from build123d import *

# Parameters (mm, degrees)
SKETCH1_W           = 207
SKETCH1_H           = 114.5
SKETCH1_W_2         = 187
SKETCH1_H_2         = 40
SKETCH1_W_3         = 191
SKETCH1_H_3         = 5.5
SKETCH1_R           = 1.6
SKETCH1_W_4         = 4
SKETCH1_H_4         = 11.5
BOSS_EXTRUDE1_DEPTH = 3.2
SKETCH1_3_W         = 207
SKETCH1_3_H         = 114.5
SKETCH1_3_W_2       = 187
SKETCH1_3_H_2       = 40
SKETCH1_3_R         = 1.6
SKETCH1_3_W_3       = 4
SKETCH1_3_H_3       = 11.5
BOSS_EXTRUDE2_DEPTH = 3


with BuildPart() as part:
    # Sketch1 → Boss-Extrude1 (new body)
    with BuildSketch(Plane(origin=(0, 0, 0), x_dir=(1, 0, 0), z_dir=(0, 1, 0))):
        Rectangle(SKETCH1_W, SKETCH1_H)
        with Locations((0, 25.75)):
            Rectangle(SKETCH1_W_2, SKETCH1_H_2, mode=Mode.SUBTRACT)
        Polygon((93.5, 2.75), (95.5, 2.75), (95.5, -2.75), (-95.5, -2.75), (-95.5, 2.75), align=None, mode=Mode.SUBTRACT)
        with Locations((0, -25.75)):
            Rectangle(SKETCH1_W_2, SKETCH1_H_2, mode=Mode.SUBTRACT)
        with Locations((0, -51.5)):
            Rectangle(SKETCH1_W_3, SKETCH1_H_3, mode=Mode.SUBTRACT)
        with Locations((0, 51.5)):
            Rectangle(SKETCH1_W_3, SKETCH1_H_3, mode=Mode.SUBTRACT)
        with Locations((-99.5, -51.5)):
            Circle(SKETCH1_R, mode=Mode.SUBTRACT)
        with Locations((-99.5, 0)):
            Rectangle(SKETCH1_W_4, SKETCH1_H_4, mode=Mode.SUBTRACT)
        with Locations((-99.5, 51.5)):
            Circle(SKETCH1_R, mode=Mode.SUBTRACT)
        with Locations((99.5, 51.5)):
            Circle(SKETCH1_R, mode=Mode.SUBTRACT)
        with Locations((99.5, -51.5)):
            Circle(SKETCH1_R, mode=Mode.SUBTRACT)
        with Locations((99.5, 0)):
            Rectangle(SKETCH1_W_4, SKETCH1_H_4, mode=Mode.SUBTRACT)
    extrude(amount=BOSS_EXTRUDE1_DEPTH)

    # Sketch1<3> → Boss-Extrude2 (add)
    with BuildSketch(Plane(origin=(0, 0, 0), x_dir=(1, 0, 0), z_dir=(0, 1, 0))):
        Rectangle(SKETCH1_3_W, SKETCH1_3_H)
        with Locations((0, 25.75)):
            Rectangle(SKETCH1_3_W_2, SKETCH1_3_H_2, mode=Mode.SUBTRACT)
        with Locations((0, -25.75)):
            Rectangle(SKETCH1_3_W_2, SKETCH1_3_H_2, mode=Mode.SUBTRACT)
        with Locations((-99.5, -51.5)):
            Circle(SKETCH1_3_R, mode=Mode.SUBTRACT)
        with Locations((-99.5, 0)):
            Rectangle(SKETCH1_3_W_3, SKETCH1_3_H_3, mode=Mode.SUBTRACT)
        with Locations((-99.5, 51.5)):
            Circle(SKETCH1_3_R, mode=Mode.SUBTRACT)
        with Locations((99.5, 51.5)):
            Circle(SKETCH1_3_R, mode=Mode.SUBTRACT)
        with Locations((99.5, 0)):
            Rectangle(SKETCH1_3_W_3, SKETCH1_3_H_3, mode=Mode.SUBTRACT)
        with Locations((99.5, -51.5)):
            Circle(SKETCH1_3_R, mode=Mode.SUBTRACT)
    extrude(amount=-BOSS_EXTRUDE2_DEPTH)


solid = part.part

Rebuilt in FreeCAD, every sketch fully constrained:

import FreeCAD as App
import Part
import Sketcher

V = App.Vector

doc = App.newDocument("Part")
body = doc.addObject("PartDesign::Body", "Body")

sketch1 = body.newObject("Sketcher::SketchObject", "Sketch")
sketch1.AttachmentSupport = (doc.getObject("XZ_Plane"), [""])
sketch1.MapMode = "FlatFace"
sketch1.addGeometry([
    Part.LineSegment(V(-103.5, -57.25, 0), V(-103.5, 57.25, 0)),
    Part.LineSegment(V(-103.5, 57.25, 0), V(103.5, 57.25, 0)),
    Part.LineSegment(V(103.5, 57.25, 0), V(103.5, -57.25, 0)),
    Part.LineSegment(V(103.5, -57.25, 0), V(-103.5, -57.25, 0)),
    Part.Circle(V(-99.5, 51.5, 0), V(0, 0, 1), 1.6),
    Part.LineSegment(V(95.5, 54.25, 0), V(-95.5, 54.25, 0)),
    Part.LineSegment(V(-95.5, 54.25, 0), V(-95.5, 48.75, 0)),
    Part.LineSegment(V(-95.5, 48.75, 0), V(95.5, 48.75, 0)),
    Part.LineSegment(V(95.5, 48.75, 0), V(95.5, 54.25, 0)),
    Part.Circle(V(99.5, 51.5, 0), V(0, 0, 1), 1.6),
    Part.LineSegment(V(93.5, 45.75, 0), V(-93.5, 45.75, 0)),
    Part.LineSegment(V(-93.5, 45.75, 0), V(-93.5, 5.75, 0)),
    Part.LineSegment(V(-93.5, 5.75, 0), V(93.5, 5.75, 0)),
    Part.LineSegment(V(93.5, 5.75, 0), V(93.5, 45.75, 0)),
    Part.LineSegment(V(-97.5, 5.75, 0), V(-101.5, 5.75, 0)),
    Part.LineSegment(V(-101.5, 5.75, 0), V(-101.5, -5.75, 0)),
    Part.LineSegment(V(-101.5, -5.75, 0), V(-97.5, -5.75, 0)),
    Part.LineSegment(V(-97.5, -5.75, 0), V(-97.5, 5.75, 0)),
    Part.Circle(V(-99.5, -51.5, 0), V(0, 0, 1), 1.6),
    Part.LineSegment(V(-95.5, -2.75, 0), V(95.5, -2.75, 0)),
    Part.LineSegment(V(95.5, -2.75, 0), V(95.5, 2.75, 0)),
    Part.LineSegment(V(95.5, 2.75, 0), V(-95.5, 2.75, 0)),
    Part.LineSegment(V(-95.5, 2.75, 0), V(-95.5, -2.75, 0)),
    Part.LineSegment(V(93.5, -5.75, 0), V(-93.5, -5.75, 0)),
    Part.LineSegment(V(-93.5, -5.75, 0), V(-93.5, -45.75, 0)),
    Part.LineSegment(V(-93.5, -45.75, 0), V(93.5, -45.75, 0)),
    Part.LineSegment(V(93.5, -45.75, 0), V(93.5, -5.75, 0)),
    Part.LineSegment(V(101.5, 5.75, 0), V(97.5, 5.75, 0)),
    Part.LineSegment(V(97.5, 5.75, 0), V(97.5, -5.75, 0)),
    Part.LineSegment(V(97.5, -5.75, 0), V(101.5, -5.75, 0)),
    Part.LineSegment(V(101.5, -5.75, 0), V(101.5, 5.75, 0)),
    Part.LineSegment(V(95.5, -48.75, 0), V(-95.5, -48.75, 0)),
    Part.LineSegment(V(-95.5, -48.75, 0), V(-95.5, -54.25, 0)),
    Part.LineSegment(V(-95.5, -54.25, 0), V(95.5, -54.25, 0)),
    Part.LineSegment(V(95.5, -54.25, 0), V(95.5, -48.75, 0)),
    Part.Circle(V(99.5, -51.5, 0), V(0, 0, 1), 1.6),
], False)
sketch1.addConstraint([
    Sketcher.Constraint("Coincident", 0, 2, 1, 1),
    Sketcher.Constraint("Coincident", 1, 2, 2, 1),
    Sketcher.Constraint("Coincident", 2, 2, 3, 1),
    Sketcher.Constraint("Coincident", 3, 2, 0, 1),
    Sketcher.Constraint("Coincident", 5, 2, 6, 1),
    Sketcher.Constraint("Coincident", 6, 2, 7, 1),
    Sketcher.Constraint("Coincident", 7, 2, 8, 1),
    Sketcher.Constraint("Coincident", 8, 2, 5, 1),
    Sketcher.Constraint("Coincident", 10, 2, 11, 1),
    Sketcher.Constraint("Coincident", 11, 2, 12, 1),
    Sketcher.Constraint("Coincident", 12, 2, 13, 1),
    Sketcher.Constraint("Coincident", 13, 2, 10, 1),
    Sketcher.Constraint("Coincident", 14, 2, 15, 1),
    Sketcher.Constraint("Coincident", 15, 2, 16, 1),
    Sketcher.Constraint("Coincident", 16, 2, 17, 1),
    Sketcher.Constraint("Coincident", 17, 2, 14, 1),
    Sketcher.Constraint("Coincident", 19, 2, 20, 1),
    Sketcher.Constraint("Coincident", 20, 2, 21, 1),
    Sketcher.Constraint("Coincident", 21, 2, 22, 1),
    Sketcher.Constraint("Coincident", 22, 2, 19, 1),
    Sketcher.Constraint("Coincident", 23, 2, 24, 1),
    Sketcher.Constraint("Coincident", 24, 2, 25, 1),
    Sketcher.Constraint("Coincident", 25, 2, 26, 1),
    Sketcher.Constraint("Coincident", 26, 2, 23, 1),
    Sketcher.Constraint("Coincident", 27, 2, 28, 1),
    Sketcher.Constraint("Coincident", 28, 2, 29, 1),
    Sketcher.Constraint("Coincident", 29, 2, 30, 1),
    Sketcher.Constraint("Coincident", 30, 2, 27, 1),
    Sketcher.Constraint("Coincident", 31, 2, 32, 1),
    Sketcher.Constraint("Coincident", 32, 2, 33, 1),
    Sketcher.Constraint("Coincident", 33, 2, 34, 1),
    Sketcher.Constraint("Coincident", 34, 2, 31, 1),
    Sketcher.Constraint("Vertical", 0),
    Sketcher.Constraint("Horizontal", 1),
    Sketcher.Constraint("Vertical", 2),
    Sketcher.Constraint("Horizontal", 3),
    Sketcher.Constraint("Horizontal", 5),
    Sketcher.Constraint("Vertical", 6),
    Sketcher.Constraint("Horizontal", 7),
    Sketcher.Constraint("Vertical", 8),
    Sketcher.Constraint("Horizontal", 10),
    Sketcher.Constraint("Vertical", 11),
    Sketcher.Constraint("Horizontal", 12),
    Sketcher.Constraint("Vertical", 13),
    Sketcher.Constraint("Horizontal", 14),
    Sketcher.Constraint("Vertical", 15),
    Sketcher.Constraint("Horizontal", 16),
    Sketcher.Constraint("Vertical", 17),
    Sketcher.Constraint("Horizontal", 19),
    Sketcher.Constraint("Vertical", 20),
    Sketcher.Constraint("Horizontal", 21),
    Sketcher.Constraint("Vertical", 22),
    Sketcher.Constraint("Horizontal", 23),
    Sketcher.Constraint("Vertical", 24),
    Sketcher.Constraint("Horizontal", 25),
    Sketcher.Constraint("Vertical", 26),
    Sketcher.Constraint("Horizontal", 27),
    Sketcher.Constraint("Vertical", 28),
    Sketcher.Constraint("Horizontal", 29),
    Sketcher.Constraint("Vertical", 30),
    Sketcher.Constraint("Horizontal", 31),
    Sketcher.Constraint("Vertical", 32),
    Sketcher.Constraint("Horizontal", 33),
    Sketcher.Constraint("Vertical", 34),
    Sketcher.Constraint("Equal", 4, 9),
    Sketcher.Constraint("Equal", 9, 18),
    Sketcher.Constraint("Equal", 18, 35),
    Sketcher.Constraint("Symmetric", 9, 3, 18, 3, -1, 1),
    Sketcher.Constraint("Symmetric", 4, 3, 35, 3, -1, 1),
    Sketcher.Constraint("Symmetric", 0, 2, 2, 2, -1, 1),
    Sketcher.Constraint("Symmetric", 19, 2, 21, 2, -1, 1),
    Sketcher.Constraint("Symmetric", 12, 2, 23, 2, -1, 1),
    Sketcher.Constraint("Symmetric", 10, 2, 25, 2, -1, 1),
    Sketcher.Constraint("Symmetric", 16, 2, 27, 2, -1, 1),
    Sketcher.Constraint("Symmetric", 14, 2, 29, 2, -1, 1),
    Sketcher.Constraint("Symmetric", 7, 2, 31, 2, -1, 1),
    Sketcher.Constraint("Symmetric", 5, 2, 33, 2, -1, 1),
    Sketcher.Constraint("Symmetric", 4, 3, 9, 3, -2),
    Sketcher.Constraint("Horizontal", 12, 2, 14, 2),
    Sketcher.Constraint("Horizontal", 16, 2, 23, 2),
    Sketcher.Constraint("Vertical", 8, 2, 19, 2),
    Sketcher.Constraint("Vertical", 6, 2, 21, 2),
    Sketcher.Constraint("Vertical", 11, 2, 23, 2),
    Sketcher.Constraint("Equal", 8, 20),
    Sketcher.Constraint("Diameter", 4, 3.2),
    Sketcher.Constraint("DistanceX", 1, 1, 1, 2, 207.0),
    Sketcher.Constraint("DistanceX", 5, 2, 5, 1, 191.0),
    Sketcher.Constraint("DistanceX", 10, 2, 10, 1, 187.0),
    Sketcher.Constraint("DistanceX", 14, 2, 14, 1, 4.0),
    Sketcher.Constraint("DistanceY", 11, 2, 11, 1, 40.0),
    Sketcher.Constraint("DistanceY", 0, 1, 0, 2, 114.5),
    Sketcher.Constraint("DistanceY", 6, 2, 6, 1, 5.5),
    Sketcher.Constraint("DistanceY", 15, 2, 15, 1, 11.5),
    Sketcher.Constraint("DistanceX", 4, 3, 9, 3, 199.0),
    Sketcher.Constraint("DistanceY", 18, 3, 4, 3, 103.0),
    Sketcher.Constraint("DistanceY", 5, 2, 0, 2, 3.0),
    Sketcher.Constraint("DistanceX", 14, 2, 11, 2, 8.0),
])
pad1 = body.newObject("PartDesign::Pad", "Pad")
pad1.Profile = sketch1
pad1.Length = 3.2
pad1.Reversed = True

sketch2 = body.newObject("Sketcher::SketchObject", "Sketch001")
sketch2.AttachmentSupport = (doc.getObject("XZ_Plane"), [""])
sketch2.MapMode = "FlatFace"
sketch2.addGeometry([
    Part.LineSegment(V(-103.5, -57.25, 0), V(-103.5, 57.25, 0)),
    Part.LineSegment(V(-103.5, 57.25, 0), V(103.5, 57.25, 0)),
    Part.LineSegment(V(103.5, 57.25, 0), V(103.5, -57.25, 0)),
    Part.LineSegment(V(103.5, -57.25, 0), V(-103.5, -57.25, 0)),
    Part.Circle(V(-99.5, 51.5, 0), V(0, 0, 1), 1.6),
    Part.Circle(V(99.5, 51.5, 0), V(0, 0, 1), 1.6),
    Part.LineSegment(V(93.5, 45.75, 0), V(-93.5, 45.75, 0)),
    Part.LineSegment(V(-93.5, 45.75, 0), V(-93.5, 5.75, 0)),
    Part.LineSegment(V(-93.5, 5.75, 0), V(93.5, 5.75, 0)),
    Part.LineSegment(V(93.5, 5.75, 0), V(93.5, 45.75, 0)),
    Part.LineSegment(V(-97.5, 5.75, 0), V(-101.5, 5.75, 0)),
    Part.LineSegment(V(-101.5, 5.75, 0), V(-101.5, -5.75, 0)),
    Part.LineSegment(V(-101.5, -5.75, 0), V(-97.5, -5.75, 0)),
    Part.LineSegment(V(-97.5, -5.75, 0), V(-97.5, 5.75, 0)),
    Part.Circle(V(-99.5, -51.5, 0), V(0, 0, 1), 1.6),
    Part.LineSegment(V(93.5, -5.75, 0), V(-93.5, -5.75, 0)),
    Part.LineSegment(V(-93.5, -5.75, 0), V(-93.5, -45.75, 0)),
    Part.LineSegment(V(-93.5, -45.75, 0), V(93.5, -45.75, 0)),
    Part.LineSegment(V(93.5, -45.75, 0), V(93.5, -5.75, 0)),
    Part.LineSegment(V(101.5, 5.75, 0), V(97.5, 5.75, 0)),
    Part.LineSegment(V(97.5, 5.75, 0), V(97.5, -5.75, 0)),
    Part.LineSegment(V(97.5, -5.75, 0), V(101.5, -5.75, 0)),
    Part.LineSegment(V(101.5, -5.75, 0), V(101.5, 5.75, 0)),
    Part.Circle(V(99.5, -51.5, 0), V(0, 0, 1), 1.6),
], False)
sketch2.addConstraint([
    Sketcher.Constraint("Coincident", 0, 2, 1, 1),
    Sketcher.Constraint("Coincident", 1, 2, 2, 1),
    Sketcher.Constraint("Coincident", 2, 2, 3, 1),
    Sketcher.Constraint("Coincident", 3, 2, 0, 1),
    Sketcher.Constraint("Coincident", 6, 2, 7, 1),
    Sketcher.Constraint("Coincident", 7, 2, 8, 1),
    Sketcher.Constraint("Coincident", 8, 2, 9, 1),
    Sketcher.Constraint("Coincident", 9, 2, 6, 1),
    Sketcher.Constraint("Coincident", 10, 2, 11, 1),
    Sketcher.Constraint("Coincident", 11, 2, 12, 1),
    Sketcher.Constraint("Coincident", 12, 2, 13, 1),
    Sketcher.Constraint("Coincident", 13, 2, 10, 1),
    Sketcher.Constraint("Coincident", 15, 2, 16, 1),
    Sketcher.Constraint("Coincident", 16, 2, 17, 1),
    Sketcher.Constraint("Coincident", 17, 2, 18, 1),
    Sketcher.Constraint("Coincident", 18, 2, 15, 1),
    Sketcher.Constraint("Coincident", 19, 2, 20, 1),
    Sketcher.Constraint("Coincident", 20, 2, 21, 1),
    Sketcher.Constraint("Coincident", 21, 2, 22, 1),
    Sketcher.Constraint("Coincident", 22, 2, 19, 1),
    Sketcher.Constraint("Vertical", 0),
    Sketcher.Constraint("Horizontal", 1),
    Sketcher.Constraint("Vertical", 2),
    Sketcher.Constraint("Horizontal", 3),
    Sketcher.Constraint("Horizontal", 6),
    Sketcher.Constraint("Vertical", 7),
    Sketcher.Constraint("Horizontal", 8),
    Sketcher.Constraint("Vertical", 9),
    Sketcher.Constraint("Horizontal", 10),
    Sketcher.Constraint("Vertical", 11),
    Sketcher.Constraint("Horizontal", 12),
    Sketcher.Constraint("Vertical", 13),
    Sketcher.Constraint("Horizontal", 15),
    Sketcher.Constraint("Vertical", 16),
    Sketcher.Constraint("Horizontal", 17),
    Sketcher.Constraint("Vertical", 18),
    Sketcher.Constraint("Horizontal", 19),
    Sketcher.Constraint("Vertical", 20),
    Sketcher.Constraint("Horizontal", 21),
    Sketcher.Constraint("Vertical", 22),
    Sketcher.Constraint("Equal", 4, 5),
    Sketcher.Constraint("Equal", 5, 14),
    Sketcher.Constraint("Equal", 14, 23),
    Sketcher.Constraint("Symmetric", 5, 3, 14, 3, -1, 1),
    Sketcher.Constraint("Symmetric", 4, 3, 23, 3, -1, 1),
    Sketcher.Constraint("Symmetric", 0, 2, 2, 2, -1, 1),
    Sketcher.Constraint("Symmetric", 8, 2, 15, 2, -1, 1),
    Sketcher.Constraint("Symmetric", 6, 2, 17, 2, -1, 1),
    Sketcher.Constraint("Symmetric", 12, 2, 19, 2, -1, 1),
    Sketcher.Constraint("Symmetric", 10, 2, 21, 2, -1, 1),
    Sketcher.Constraint("Symmetric", 4, 3, 5, 3, -2),
    Sketcher.Constraint("Horizontal", 8, 2, 10, 2),
    Sketcher.Constraint("Horizontal", 12, 2, 15, 2),
    Sketcher.Constraint("Vertical", 7, 2, 15, 2),
    Sketcher.Constraint("Diameter", 4, 3.2),
    Sketcher.Constraint("DistanceX", 1, 1, 1, 2, 207.0),
    Sketcher.Constraint("DistanceX", 6, 2, 6, 1, 187.0),
    Sketcher.Constraint("DistanceX", 10, 2, 10, 1, 4.0),
    Sketcher.Constraint("DistanceY", 7, 2, 7, 1, 40.0),
    Sketcher.Constraint("DistanceY", 0, 1, 0, 2, 114.5),
    Sketcher.Constraint("DistanceY", 11, 2, 11, 1, 11.5),
    Sketcher.Constraint("DistanceX", 4, 3, 5, 3, 199.0),
    Sketcher.Constraint("DistanceY", 14, 3, 4, 3, 103.0),
    Sketcher.Constraint("DistanceX", 10, 2, 7, 2, 8.0),
])
pad2 = body.newObject("PartDesign::Pad", "Pad001")
pad2.Profile = sketch2
pad2.Length = 3

doc.recompute()
